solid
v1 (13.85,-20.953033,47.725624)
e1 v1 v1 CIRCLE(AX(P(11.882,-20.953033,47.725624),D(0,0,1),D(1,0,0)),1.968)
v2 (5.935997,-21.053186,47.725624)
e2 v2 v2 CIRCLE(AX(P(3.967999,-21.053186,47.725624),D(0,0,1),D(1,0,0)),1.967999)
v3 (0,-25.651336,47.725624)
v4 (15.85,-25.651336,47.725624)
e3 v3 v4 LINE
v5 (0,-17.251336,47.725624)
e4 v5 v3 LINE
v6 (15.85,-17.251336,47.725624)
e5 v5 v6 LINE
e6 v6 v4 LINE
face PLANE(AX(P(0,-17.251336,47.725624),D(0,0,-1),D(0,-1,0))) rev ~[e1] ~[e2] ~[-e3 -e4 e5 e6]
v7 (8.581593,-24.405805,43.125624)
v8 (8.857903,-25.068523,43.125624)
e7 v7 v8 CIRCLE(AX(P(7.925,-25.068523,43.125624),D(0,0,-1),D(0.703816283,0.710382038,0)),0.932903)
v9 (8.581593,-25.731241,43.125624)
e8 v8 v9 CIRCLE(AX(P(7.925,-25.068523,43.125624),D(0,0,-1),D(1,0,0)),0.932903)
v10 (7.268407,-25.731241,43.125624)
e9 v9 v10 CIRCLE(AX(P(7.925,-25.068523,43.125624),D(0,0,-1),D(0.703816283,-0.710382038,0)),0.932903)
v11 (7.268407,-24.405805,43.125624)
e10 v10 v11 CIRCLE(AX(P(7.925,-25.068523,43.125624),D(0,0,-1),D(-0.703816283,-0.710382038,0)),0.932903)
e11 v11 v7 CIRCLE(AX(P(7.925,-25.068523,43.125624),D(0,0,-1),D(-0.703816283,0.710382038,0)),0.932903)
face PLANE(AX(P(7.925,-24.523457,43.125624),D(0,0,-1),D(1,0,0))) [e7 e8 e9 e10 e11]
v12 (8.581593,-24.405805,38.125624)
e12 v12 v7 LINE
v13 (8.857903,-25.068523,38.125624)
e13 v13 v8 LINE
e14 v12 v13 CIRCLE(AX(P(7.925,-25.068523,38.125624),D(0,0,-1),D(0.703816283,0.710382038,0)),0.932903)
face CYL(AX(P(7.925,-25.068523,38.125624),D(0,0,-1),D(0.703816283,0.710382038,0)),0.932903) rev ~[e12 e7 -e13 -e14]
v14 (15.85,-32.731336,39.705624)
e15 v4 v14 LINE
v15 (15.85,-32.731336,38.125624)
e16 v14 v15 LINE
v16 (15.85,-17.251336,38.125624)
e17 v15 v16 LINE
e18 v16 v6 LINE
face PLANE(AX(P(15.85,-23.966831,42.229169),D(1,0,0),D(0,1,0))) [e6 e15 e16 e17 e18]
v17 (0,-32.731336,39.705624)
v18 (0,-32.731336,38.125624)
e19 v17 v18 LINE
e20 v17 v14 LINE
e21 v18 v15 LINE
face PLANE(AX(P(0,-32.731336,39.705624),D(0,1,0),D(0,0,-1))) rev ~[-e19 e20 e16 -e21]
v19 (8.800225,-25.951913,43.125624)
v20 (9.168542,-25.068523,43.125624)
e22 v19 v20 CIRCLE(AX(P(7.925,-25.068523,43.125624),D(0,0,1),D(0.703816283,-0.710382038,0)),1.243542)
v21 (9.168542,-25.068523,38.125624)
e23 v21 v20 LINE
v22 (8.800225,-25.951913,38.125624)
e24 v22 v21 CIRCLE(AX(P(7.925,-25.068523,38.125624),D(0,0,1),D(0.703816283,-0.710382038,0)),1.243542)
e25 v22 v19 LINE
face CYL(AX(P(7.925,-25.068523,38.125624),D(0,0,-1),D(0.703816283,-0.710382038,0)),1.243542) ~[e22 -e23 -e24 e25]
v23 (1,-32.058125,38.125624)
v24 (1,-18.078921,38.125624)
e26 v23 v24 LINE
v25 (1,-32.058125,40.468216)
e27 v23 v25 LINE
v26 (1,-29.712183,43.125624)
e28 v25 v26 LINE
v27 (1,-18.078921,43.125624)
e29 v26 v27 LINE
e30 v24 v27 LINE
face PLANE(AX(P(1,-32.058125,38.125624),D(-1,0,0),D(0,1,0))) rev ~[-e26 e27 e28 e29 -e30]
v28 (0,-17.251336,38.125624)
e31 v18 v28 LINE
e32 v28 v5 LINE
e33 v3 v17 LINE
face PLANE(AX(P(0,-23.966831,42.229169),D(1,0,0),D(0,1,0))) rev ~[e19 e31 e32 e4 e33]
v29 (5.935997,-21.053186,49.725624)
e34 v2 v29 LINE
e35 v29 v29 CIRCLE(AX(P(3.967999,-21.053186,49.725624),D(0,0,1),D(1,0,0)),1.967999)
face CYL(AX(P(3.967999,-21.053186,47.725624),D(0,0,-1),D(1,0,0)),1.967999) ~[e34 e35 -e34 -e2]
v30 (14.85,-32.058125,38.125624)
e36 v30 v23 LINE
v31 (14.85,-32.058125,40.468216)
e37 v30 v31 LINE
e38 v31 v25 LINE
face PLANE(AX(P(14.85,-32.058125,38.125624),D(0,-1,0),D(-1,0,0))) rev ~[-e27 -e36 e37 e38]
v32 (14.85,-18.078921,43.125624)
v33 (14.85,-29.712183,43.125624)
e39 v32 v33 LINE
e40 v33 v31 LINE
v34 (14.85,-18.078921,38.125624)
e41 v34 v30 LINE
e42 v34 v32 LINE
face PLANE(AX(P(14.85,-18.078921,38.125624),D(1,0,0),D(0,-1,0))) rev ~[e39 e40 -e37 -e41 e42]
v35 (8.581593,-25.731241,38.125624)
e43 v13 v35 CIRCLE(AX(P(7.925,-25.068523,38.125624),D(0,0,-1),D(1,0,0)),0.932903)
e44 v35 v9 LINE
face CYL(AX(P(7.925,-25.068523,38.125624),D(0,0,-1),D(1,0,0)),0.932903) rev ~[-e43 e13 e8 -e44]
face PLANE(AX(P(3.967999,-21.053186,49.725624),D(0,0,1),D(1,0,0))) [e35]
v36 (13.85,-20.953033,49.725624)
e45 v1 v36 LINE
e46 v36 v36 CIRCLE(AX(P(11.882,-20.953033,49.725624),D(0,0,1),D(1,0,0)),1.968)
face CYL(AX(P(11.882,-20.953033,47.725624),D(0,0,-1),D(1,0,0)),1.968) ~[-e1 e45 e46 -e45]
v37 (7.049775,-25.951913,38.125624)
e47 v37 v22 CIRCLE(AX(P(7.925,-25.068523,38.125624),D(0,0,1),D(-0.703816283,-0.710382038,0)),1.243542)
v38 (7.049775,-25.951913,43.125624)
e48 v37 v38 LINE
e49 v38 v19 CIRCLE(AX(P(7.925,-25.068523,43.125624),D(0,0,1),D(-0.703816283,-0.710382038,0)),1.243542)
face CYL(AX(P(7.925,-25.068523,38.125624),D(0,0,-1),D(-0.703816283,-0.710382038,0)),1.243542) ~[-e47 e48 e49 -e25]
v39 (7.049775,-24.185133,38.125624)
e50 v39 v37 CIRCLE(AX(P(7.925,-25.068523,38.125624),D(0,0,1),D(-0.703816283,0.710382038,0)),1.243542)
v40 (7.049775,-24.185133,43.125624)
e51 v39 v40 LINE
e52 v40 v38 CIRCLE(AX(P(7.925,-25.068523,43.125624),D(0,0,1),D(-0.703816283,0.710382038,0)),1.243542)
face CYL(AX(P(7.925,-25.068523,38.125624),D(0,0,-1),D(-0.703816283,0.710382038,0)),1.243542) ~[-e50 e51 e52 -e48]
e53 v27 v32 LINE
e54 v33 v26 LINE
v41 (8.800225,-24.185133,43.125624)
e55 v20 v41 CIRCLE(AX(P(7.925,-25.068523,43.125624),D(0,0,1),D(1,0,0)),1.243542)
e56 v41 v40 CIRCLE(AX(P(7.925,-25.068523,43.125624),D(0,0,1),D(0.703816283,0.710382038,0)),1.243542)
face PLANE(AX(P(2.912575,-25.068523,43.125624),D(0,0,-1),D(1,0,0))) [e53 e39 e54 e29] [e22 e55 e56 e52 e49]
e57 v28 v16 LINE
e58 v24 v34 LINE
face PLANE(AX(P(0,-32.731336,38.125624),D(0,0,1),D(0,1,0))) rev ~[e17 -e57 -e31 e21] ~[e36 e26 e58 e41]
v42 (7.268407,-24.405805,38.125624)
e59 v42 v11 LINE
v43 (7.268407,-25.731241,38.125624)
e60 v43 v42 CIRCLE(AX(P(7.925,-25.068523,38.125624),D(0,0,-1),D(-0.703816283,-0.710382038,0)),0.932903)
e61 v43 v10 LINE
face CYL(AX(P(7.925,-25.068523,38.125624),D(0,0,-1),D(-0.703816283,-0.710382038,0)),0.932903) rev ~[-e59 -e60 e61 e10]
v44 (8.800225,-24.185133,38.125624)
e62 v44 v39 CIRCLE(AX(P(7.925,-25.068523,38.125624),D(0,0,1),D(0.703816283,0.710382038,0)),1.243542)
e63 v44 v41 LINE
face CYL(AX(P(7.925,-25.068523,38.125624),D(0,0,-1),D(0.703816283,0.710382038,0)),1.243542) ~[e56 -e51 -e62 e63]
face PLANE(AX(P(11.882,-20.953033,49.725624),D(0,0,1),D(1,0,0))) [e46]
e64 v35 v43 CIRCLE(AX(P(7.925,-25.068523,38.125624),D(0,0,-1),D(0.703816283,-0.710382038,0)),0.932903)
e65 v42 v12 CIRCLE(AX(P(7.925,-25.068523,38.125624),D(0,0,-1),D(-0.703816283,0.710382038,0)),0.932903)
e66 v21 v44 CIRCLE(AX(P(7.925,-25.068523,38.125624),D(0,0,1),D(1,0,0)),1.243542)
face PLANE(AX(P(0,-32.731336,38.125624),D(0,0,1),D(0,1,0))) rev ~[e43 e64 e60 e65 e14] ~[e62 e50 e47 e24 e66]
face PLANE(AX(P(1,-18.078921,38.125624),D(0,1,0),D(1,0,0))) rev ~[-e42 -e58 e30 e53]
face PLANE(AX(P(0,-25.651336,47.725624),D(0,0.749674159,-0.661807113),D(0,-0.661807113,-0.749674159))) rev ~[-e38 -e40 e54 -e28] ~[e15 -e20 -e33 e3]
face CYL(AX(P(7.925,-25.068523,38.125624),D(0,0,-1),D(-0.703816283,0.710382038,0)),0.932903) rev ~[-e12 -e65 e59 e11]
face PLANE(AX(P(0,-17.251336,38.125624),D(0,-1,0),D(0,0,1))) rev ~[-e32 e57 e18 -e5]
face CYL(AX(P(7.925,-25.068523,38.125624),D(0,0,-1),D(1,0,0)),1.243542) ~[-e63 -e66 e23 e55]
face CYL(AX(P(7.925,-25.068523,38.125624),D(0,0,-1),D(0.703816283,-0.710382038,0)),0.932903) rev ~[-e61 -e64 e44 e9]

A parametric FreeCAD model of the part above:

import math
import FreeCAD as App
import Part
import Sketcher

V = App.Vector

doc = App.newDocument("Part")
body = doc.addObject("PartDesign::Body", "Body")

# Sketch on YZ plane
sketch1 = body.newObject("Sketcher::SketchObject", "Sketch")
sketch1.AttachmentSupport = (doc.getObject("YZ_Plane"), [""])
sketch1.MapMode = "FlatFace"
sketch1.addGeometry([
    Part.LineSegment(V(-17.251336, 38.125624, 0), V(-17.251336, 47.725624, 0)),  # 0
    Part.LineSegment(V(-17.251336, 47.725624, 0), V(-25.651336, 47.725624, 0)),  # 1
    Part.LineSegment(V(-25.651336, 47.725624, 0), V(-32.731336, 39.705624, 0)),  # 2
    Part.LineSegment(V(-32.731336, 39.705624, 0), V(-32.731336, 38.125624, 0)),  # 3
    Part.LineSegment(V(-32.731336, 38.125624, 0), V(-17.251336, 38.125624, 0)),  # 4
], False)
sketch1.addConstraint([
    Sketcher.Constraint("Coincident", 0, 2, 1, 1),
    Sketcher.Constraint("Coincident", 1, 2, 2, 1),
    Sketcher.Constraint("Coincident", 2, 2, 3, 1),
    Sketcher.Constraint("Coincident", 3, 2, 4, 1),
    Sketcher.Constraint("Coincident", 4, 2, 0, 1),
    Sketcher.Constraint("Vertical", 0),
    Sketcher.Constraint("Horizontal", 1),
    Sketcher.Constraint("Vertical", 3),
    Sketcher.Constraint("Horizontal", 4),
    Sketcher.Constraint("DistanceX", 1, 2, 1, 1, 8.4),
    Sketcher.Constraint("DistanceY", 0, 1, 0, 2, 9.6),
    Sketcher.Constraint("DistanceX", 4, 1, 4, 2, 15.48),
    Sketcher.Constraint("DistanceY", 3, 2, 3, 1, 1.58),
    Sketcher.Constraint("DistanceX", 0, 2, -1, 1, 17.251336),
    Sketcher.Constraint("DistanceY", -1, 1, 0, 2, 47.725624),
])
pad1 = body.newObject("PartDesign::Pad", "Pad")
pad1.Profile = sketch1
pad1.Length = 15.85

# Sketch on XY plane
sketch2 = body.newObject("Sketcher::SketchObject", "Sketch001")
sketch2.AttachmentSupport = (doc.getObject("XY_Plane"), [""])
sketch2.MapMode = "FlatFace"
sketch2.AttachmentOffset = App.Placement(V(0, 0, 47.725624), App.Rotation())
sketch2.addGeometry([
    Part.Circle(V(3.967999, -21.053186, 0), V(0, 0, 1), 1.967999),
    Part.Circle(V(11.882, -20.953033, 0), V(0, 0, 1), 1.968),
], False)
sketch2.addConstraint([
    Sketcher.Constraint("Equal", 0, 1),
    Sketcher.Constraint("Diameter", 1, 3.936),
    Sketcher.Constraint("DistanceX", -1, 1, 0, 3, 3.967999),
    Sketcher.Constraint("DistanceX", -1, 1, 1, 3, 11.882),
    Sketcher.Constraint("DistanceY", 0, 3, -1, 1, 21.053186),
    Sketcher.Constraint("DistanceY", 1, 3, -1, 1, 20.953033),
])
pad2 = body.newObject("PartDesign::Pad", "Pad001")
pad2.Profile = sketch2
pad2.Length = 2

# Sketch on XY plane
sketch3 = body.newObject("Sketcher::SketchObject", "Sketch002")
sketch3.AttachmentSupport = (doc.getObject("XY_Plane"), [""])
sketch3.MapMode = "FlatFace"
sketch3.AttachmentOffset = App.Placement(V(0, 0, 38.125624), App.Rotation())
sketch3.addGeometry([
    Part.LineSegment(V(1, -32.058125, 0), V(1, -18.078921, 0)),  # 0
    Part.LineSegment(V(1, -18.078921, 0), V(14.85, -18.078921, 0)),  # 1
    Part.LineSegment(V(14.85, -18.078921, 0), V(14.85, -32.058125, 0)),  # 2
    Part.LineSegment(V(14.85, -32.058125, 0), V(1, -32.058125, 0)),  # 3
    Part.ArcOfCircle(Part.Circle(V(7.925, -25.068523, 0), V(0, 0, 1), 1.243542), math.radians(134.733993), math.radians(225.266007)),  # 4
    Part.ArcOfCircle(Part.Circle(V(7.925, -25.068523, 0), V(0, 0, 1), 1.243542), math.radians(-134.733993), math.radians(-45.266007)),  # 5
    Part.ArcOfCircle(Part.Circle(V(7.925, -25.068523, 0), V(0, 0, 1), 1.243542), math.radians(-45.266007), math.radians(0)),  # 6
    Part.ArcOfCircle(Part.Circle(V(7.925, -25.068523, 0), V(0, 0, 1), 1.243542), math.radians(0), math.radians(45.266007)),  # 7
    Part.ArcOfCircle(Part.Circle(V(7.925, -25.068523, 0), V(0, 0, 1), 1.243542), math.radians(45.266007), math.radians(134.733993)),  # 8
    Part.ArcOfCircle(Part.Circle(V(7.925, -25.068523, 0), V(0, 0, 1), 0.932903), math.radians(45.266007), math.radians(134.733993)),  # 9
    Part.ArcOfCircle(Part.Circle(V(7.925, -25.068523, 0), V(0, 0, 1), 0.932903), math.radians(0), math.radians(45.266007)),  # 10
    Part.ArcOfCircle(Part.Circle(V(7.925, -25.068523, 0), V(0, 0, 1), 0.932903), math.radians(-45.266007), math.radians(0)),  # 11
    Part.ArcOfCircle(Part.Circle(V(7.925, -25.068523, 0), V(0, 0, 1), 0.932903), math.radians(-134.733993), math.radians(-45.266007)),  # 12
    Part.ArcOfCircle(Part.Circle(V(7.925, -25.068523, 0), V(0, 0, 1), 0.932903), math.radians(134.733993), math.radians(225.266007)),  # 13
], False)
sketch3.addConstraint([
    Sketcher.Constraint("Coincident", 0, 2, 1, 1),
    Sketcher.Constraint("Coincident", 1, 2, 2, 1),
    Sketcher.Constraint("Coincident", 2, 2, 3, 1),
    Sketcher.Constraint("Coincident", 3, 2, 0, 1),
    Sketcher.Constraint("Tangent", 4, 2, 5, 1),
    Sketcher.Constraint("Tangent", 5, 2, 6, 1),
    Sketcher.Constraint("Tangent", 6, 2, 7, 1),
    Sketcher.Constraint("Tangent", 7, 2, 8, 1),
    Sketcher.Constraint("Tangent", 8, 2, 4, 1),
    Sketcher.Constraint("Tangent", 9, 1, 10, 2),
    Sketcher.Constraint("Tangent", 10, 1, 11, 2),
    Sketcher.Constraint("Tangent", 11, 1, 12, 2),
    Sketcher.Constraint("Tangent", 12, 1, 13, 2),
    Sketcher.Constraint("Tangent", 13, 1, 9, 2),
    Sketcher.Constraint("Vertical", 0),
    Sketcher.Constraint("Horizontal", 1),
    Sketcher.Constraint("Vertical", 2),
    Sketcher.Constraint("Horizontal", 3),
    Sketcher.Constraint("Coincident", 6, 3, 4, 3),
    Sketcher.Constraint("Coincident", 9, 3, 4, 3),
    Sketcher.Constraint("Coincident", 11, 3, 4, 3),
    Sketcher.Constraint("Horizontal", 4, 2, 5, 2),
    Sketcher.Constraint("Horizontal", 13, 3, 6, 2),
    Sketcher.Constraint("Horizontal", 7, 2, 8, 2),
    Sketcher.Constraint("Horizontal", 6, 2, 10, 1),
    Sketcher.Constraint("Horizontal", 11, 1, 12, 1),
    Sketcher.Constraint("Horizontal", 9, 1, 13, 1),
    Sketcher.Constraint("Vertical", 5, 2, 7, 2),
    Sketcher.Constraint("Vertical", 9, 1, 11, 1),
    Sketcher.Constraint("DistanceX", -1, 1, 0, 2, 1.0),
    Sketcher.Constraint("DistanceX", 1, 1, 1, 2, 13.85),
    Sketcher.Constraint("DistanceX", -1, 1, 4, 3, 7.925),
    Sketcher.Constraint("Radius", 4, 1.243542),
    Sketcher.Constraint("Radius", 9, 0.932903),
    Sketcher.Constraint("DistanceY", 6, 3, 0, 2, 6.989602),
    Sketcher.Constraint("DistanceY", 2, 2, 4, 3, 6.989602),
    Sketcher.Constraint("DistanceY", 0, 2, -1, 1, 18.078921),
    Sketcher.Constraint("DistanceY", 11, 1, -1, 1, 25.731241),
    Sketcher.Constraint("DistanceY", 4, 2, 7, 3, 0.88339),
])
pocket1 = body.newObject("PartDesign::Pocket", "Pocket")
pocket1.Profile = sketch3
pocket1.Length = 5
pocket1.Reversed = True

doc.recompute()
